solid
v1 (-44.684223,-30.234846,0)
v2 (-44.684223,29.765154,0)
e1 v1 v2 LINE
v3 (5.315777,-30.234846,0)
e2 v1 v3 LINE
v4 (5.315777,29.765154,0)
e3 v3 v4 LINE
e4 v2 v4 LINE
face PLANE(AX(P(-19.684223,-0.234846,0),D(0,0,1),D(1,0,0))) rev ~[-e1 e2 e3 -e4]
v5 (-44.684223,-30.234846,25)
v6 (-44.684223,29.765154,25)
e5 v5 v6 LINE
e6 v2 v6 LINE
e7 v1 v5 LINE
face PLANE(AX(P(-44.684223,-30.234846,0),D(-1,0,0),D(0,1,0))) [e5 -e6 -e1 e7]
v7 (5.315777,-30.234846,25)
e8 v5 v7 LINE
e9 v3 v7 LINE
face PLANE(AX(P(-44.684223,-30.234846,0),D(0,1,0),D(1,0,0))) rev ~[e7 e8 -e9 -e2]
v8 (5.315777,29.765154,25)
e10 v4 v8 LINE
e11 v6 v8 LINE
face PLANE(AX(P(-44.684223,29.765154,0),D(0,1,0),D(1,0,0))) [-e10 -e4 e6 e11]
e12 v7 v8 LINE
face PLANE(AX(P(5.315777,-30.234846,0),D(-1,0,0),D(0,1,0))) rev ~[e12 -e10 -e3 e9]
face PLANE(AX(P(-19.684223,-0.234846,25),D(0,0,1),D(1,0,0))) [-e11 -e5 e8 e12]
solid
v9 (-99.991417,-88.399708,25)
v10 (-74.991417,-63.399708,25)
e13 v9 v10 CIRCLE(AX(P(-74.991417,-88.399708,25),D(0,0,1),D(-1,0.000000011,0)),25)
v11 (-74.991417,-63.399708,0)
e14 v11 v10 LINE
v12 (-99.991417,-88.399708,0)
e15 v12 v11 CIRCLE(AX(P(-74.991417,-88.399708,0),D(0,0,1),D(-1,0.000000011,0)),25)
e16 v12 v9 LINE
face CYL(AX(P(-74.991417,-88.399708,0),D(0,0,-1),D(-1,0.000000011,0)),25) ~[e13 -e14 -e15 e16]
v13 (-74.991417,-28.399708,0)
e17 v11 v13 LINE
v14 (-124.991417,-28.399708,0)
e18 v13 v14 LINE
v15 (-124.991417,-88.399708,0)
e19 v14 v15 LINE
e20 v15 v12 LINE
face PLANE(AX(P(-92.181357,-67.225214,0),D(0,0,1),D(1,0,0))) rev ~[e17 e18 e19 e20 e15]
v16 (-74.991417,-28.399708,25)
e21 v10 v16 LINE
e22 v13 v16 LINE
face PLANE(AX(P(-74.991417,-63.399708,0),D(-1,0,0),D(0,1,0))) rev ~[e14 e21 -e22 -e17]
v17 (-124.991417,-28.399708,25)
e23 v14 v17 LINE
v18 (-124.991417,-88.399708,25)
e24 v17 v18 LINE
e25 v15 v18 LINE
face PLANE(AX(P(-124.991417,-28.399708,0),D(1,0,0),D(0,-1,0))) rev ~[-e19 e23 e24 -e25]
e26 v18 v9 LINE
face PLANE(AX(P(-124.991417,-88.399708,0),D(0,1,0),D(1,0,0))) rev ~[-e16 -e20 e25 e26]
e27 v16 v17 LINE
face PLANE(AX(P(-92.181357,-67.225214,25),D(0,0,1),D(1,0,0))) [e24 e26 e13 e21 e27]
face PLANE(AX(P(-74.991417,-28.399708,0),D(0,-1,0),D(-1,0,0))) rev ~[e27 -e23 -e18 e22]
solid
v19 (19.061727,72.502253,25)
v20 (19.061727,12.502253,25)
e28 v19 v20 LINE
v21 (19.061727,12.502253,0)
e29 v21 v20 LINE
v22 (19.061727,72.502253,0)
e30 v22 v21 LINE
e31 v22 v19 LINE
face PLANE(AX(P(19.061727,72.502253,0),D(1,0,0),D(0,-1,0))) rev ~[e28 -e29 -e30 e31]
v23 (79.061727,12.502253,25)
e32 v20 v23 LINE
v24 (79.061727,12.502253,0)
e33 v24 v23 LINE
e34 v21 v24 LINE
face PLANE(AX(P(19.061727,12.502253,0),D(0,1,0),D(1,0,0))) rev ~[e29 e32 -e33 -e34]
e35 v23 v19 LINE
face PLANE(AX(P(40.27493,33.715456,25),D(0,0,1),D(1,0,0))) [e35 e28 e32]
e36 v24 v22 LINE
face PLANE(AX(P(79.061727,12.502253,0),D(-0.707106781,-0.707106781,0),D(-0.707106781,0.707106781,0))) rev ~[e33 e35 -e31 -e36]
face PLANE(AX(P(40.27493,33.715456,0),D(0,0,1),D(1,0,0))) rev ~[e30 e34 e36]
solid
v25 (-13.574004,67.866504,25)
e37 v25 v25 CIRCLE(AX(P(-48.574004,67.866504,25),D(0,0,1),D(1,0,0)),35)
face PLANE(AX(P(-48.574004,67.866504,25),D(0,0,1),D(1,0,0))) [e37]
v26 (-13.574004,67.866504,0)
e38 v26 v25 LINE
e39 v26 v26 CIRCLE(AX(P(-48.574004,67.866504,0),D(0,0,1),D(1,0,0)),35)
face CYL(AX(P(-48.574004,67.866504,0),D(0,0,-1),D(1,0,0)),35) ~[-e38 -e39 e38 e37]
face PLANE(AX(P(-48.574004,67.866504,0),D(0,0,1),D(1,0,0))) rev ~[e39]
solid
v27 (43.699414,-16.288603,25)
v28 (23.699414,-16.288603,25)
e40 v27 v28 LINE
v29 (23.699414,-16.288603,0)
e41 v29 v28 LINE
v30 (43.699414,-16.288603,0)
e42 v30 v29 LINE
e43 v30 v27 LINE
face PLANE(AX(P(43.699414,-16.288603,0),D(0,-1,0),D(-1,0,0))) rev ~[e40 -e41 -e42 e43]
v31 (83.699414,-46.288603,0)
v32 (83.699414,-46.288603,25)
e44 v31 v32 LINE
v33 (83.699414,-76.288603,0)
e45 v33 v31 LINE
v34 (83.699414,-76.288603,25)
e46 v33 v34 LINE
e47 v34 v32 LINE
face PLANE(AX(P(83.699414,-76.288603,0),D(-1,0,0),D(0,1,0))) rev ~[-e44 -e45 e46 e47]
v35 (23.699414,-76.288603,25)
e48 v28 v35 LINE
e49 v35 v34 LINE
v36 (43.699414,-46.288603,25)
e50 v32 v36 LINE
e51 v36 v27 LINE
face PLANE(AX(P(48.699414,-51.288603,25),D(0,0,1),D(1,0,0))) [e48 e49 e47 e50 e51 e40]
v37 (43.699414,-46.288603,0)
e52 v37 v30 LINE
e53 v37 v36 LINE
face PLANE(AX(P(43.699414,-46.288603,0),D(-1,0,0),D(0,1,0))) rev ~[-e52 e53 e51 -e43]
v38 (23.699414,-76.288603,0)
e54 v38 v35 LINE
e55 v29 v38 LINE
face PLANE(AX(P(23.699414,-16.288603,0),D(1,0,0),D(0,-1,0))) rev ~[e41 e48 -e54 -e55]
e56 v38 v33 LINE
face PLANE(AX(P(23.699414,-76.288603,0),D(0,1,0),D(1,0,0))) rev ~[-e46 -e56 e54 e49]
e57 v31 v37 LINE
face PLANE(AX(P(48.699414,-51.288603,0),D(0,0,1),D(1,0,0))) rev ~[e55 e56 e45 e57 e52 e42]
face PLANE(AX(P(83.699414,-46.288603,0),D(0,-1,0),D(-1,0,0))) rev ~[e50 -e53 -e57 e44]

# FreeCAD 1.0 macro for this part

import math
import FreeCAD as App
import Part
import Sketcher
from FreeCAD import Vector

doc = App.newDocument("Part")
body = doc.addObject("PartDesign::Body", "Body")
body.AllowCompound = True

sketch1 = body.newObject("Sketcher::SketchObject", "Sketch")
sketch1.AttachmentSupport = (doc.getObject("XY_Plane"), [""])
sketch1.MapMode = "FlatFace"
sketch1.addGeometry(Part.Circle(Vector(-49, 68, 0), Vector(0, 0, 1), 35), False)
sketch1.addConstraint([
    Sketcher.Constraint("Diameter", 0, 70.0),
    Sketcher.Constraint("DistanceX", 0, 3, -1, 1, 48.574004),
    Sketcher.Constraint("DistanceY", -1, 1, 0, 3, 67.866504),
])
pad1 = body.newObject("PartDesign::Pad", "Pad")
pad1.Profile = sketch1
pad1.Length = 25

sketch2 = body.newObject("Sketcher::SketchObject", "Sketch001")
sketch2.AttachmentSupport = (doc.getObject("XY_Plane"), [""])
sketch2.MapMode = "FlatFace"
sketch2.addGeometry([
    Part.LineSegment(Vector(79, 13, 0), Vector(19, 73, 0)),
    Part.LineSegment(Vector(19, 73, 0), Vector(19, 13, 0)),
    Part.LineSegment(Vector(19, 13, 0), Vector(79, 13, 0)),
    Part.Circle(Vector(-49, 68, 0), Vector(0, 0, 1), 35),
    Part.LineSegment(Vector(84, -46, 0), Vector(44, -46, 0)),
    Part.LineSegment(Vector(44, -46, 0), Vector(44, -16, 0)),
    Part.LineSegment(Vector(44, -16, 0), Vector(24, -16, 0)),
    Part.LineSegment(Vector(24, -16, 0), Vector(24, -76, 0)),
    Part.LineSegment(Vector(24, -76, 0), Vector(84, -76, 0)),
    Part.LineSegment(Vector(84, -76, 0), Vector(84, -46, 0)),
    Part.LineSegment(Vector(-75, -28, 0), Vector(-125, -28, 0)),
    Part.LineSegment(Vector(-125, -28, 0), Vector(-125, -88, 0)),
    Part.LineSegment(Vector(-125, -88, 0), Vector(-100, -88, 0)),
    Part.ArcOfCircle(Part.Circle(Vector(-75, -88, 0), Vector(0, 0, 1), 25), math.radians(180), math.radians(450)),
    Part.LineSegment(Vector(-75, -63, 0), Vector(-75, -28, 0)),
], False)
sketch2.addConstraint([
    Sketcher.Constraint("Coincident", 0, 2, 1, 1),
    Sketcher.Constraint("Coincident", 1, 2, 2, 1),
    Sketcher.Constraint("Coincident", 2, 2, 0, 1),
    Sketcher.Constraint("Coincident", 4, 2, 5, 1),
    Sketcher.Constraint("Coincident", 5, 2, 6, 1),
    Sketcher.Constraint("Coincident", 6, 2, 7, 1),
    Sketcher.Constraint("Coincident", 7, 2, 8, 1),
    Sketcher.Constraint("Coincident", 8, 2, 9, 1),
    Sketcher.Constraint("Coincident", 9, 2, 4, 1),
    Sketcher.Constraint("Coincident", 10, 2, 11, 1),
    Sketcher.Constraint("Coincident", 11, 2, 12, 1),
    Sketcher.Constraint("Coincident", 12, 2, 13, 1),
    Sketcher.Constraint("Coincident", 13, 2, 14, 1),
    Sketcher.Constraint("Coincident", 14, 2, 10, 1),
    Sketcher.Constraint("Vertical", 1),
    Sketcher.Constraint("Horizontal", 2),
    Sketcher.Constraint("Horizontal", 4),
    Sketcher.Constraint("Vertical", 5),
    Sketcher.Constraint("Horizontal", 6),
    Sketcher.Constraint("Vertical", 7),
    Sketcher.Constraint("Horizontal", 8),
    Sketcher.Constraint("Vertical", 9),
    Sketcher.Constraint("Horizontal", 10),
    Sketcher.Constraint("Vertical", 11),
    Sketcher.Constraint("Horizontal", 12),
    Sketcher.Constraint("Vertical", 14),
    Sketcher.Constraint("Horizontal", 13, 3, 11, 2),
    Sketcher.Constraint("Equal", 2, 8),
    Sketcher.Constraint("Equal", 8, 1),
    Sketcher.Constraint("Equal", 1, 7),
    Sketcher.Constraint("Equal", 5, 9),
    Sketcher.Constraint("Equal", 7, 11),
    Sketcher.Constraint("Diameter", 3, 70.0),
    Sketcher.Constraint("Radius", 13, 25.0),
    Sketcher.Constraint("DistanceX", 2, 1, 2, 2, 60.0),
    Sketcher.Constraint("DistanceX", 4, 2, 4, 1, 40.0),
    Sketcher.Constraint("DistanceX", 10, 2, 10, 1, 50.0),
    Sketcher.Constraint("DistanceX", 12, 1, 12, 2, 25.0),
    Sketcher.Constraint("DistanceY", 13, 3, -1, 1, 88.399708),
    Sketcher.Constraint("DistanceX", 3, 3, 0, 2, 67.635731),
    Sketcher.Constraint("DistanceY", 3, 3, 0, 2, 4.635749),
    Sketcher.Constraint("DistanceY", 13, 3, 0, 2, 160.901961),
    Sketcher.Constraint("DistanceX", 13, 3, 4, 2, 118.690831),
    Sketcher.Constraint("DistanceX", 3, 3, -1, 1, 48.574004),
    Sketcher.Constraint("DistanceX", 13, 3, -1, 1, 74.991417),
    Sketcher.Constraint("DistanceY", 4, 2, -1, 1, 46.288603),
])
pad2 = body.newObject("PartDesign::Pad", "Pad001")
pad2.Profile = sketch2
pad2.Length = 25
body2 = doc.addObject("PartDesign::Body", "Body001")

sketch3 = body2.newObject("Sketcher::SketchObject", "Sketch002")
sketch3.AttachmentSupport = (doc.getObject("XY_Plane001"), [""])
sketch3.MapMode = "FlatFace"
sketch3.addGeometry([
    Part.LineSegment(Vector(-45, 30, 0), Vector(-45, -30, 0)),
    Part.LineSegment(Vector(-45, -30, 0), Vector(5, -30, 0)),
    Part.LineSegment(Vector(5, -30, 0), Vector(5, 30, 0)),
    Part.LineSegment(Vector(5, 30, 0), Vector(-45, 30, 0)),
], False)
sketch3.addConstraint([
    Sketcher.Constraint("Coincident", 0, 2, 1, 1),
    Sketcher.Constraint("Coincident", 1, 2, 2, 1),
    Sketcher.Constraint("Coincident", 2, 2, 3, 1),
    Sketcher.Constraint("Coincident", 3, 2, 0, 1),
    Sketcher.Constraint("Vertical", 0),
    Sketcher.Constraint("Horizontal", 1),
    Sketcher.Constraint("Vertical", 2),
    Sketcher.Constraint("Horizontal", 3),
    Sketcher.Constraint("DistanceX", 1, 1, 1, 2, 50.0),
    Sketcher.Constraint("DistanceY", 0, 2, 0, 1, 60.0),
    Sketcher.Constraint("DistanceX", 0, 2, -1, 1, 44.684223),
    Sketcher.Constraint("DistanceY", 0, 2, -1, 1, 30.234846),
])
pad3 = body2.newObject("PartDesign::Pad", "Pad002")
pad3.Profile = sketch3
pad3.Length = 25

doc.recompute()
